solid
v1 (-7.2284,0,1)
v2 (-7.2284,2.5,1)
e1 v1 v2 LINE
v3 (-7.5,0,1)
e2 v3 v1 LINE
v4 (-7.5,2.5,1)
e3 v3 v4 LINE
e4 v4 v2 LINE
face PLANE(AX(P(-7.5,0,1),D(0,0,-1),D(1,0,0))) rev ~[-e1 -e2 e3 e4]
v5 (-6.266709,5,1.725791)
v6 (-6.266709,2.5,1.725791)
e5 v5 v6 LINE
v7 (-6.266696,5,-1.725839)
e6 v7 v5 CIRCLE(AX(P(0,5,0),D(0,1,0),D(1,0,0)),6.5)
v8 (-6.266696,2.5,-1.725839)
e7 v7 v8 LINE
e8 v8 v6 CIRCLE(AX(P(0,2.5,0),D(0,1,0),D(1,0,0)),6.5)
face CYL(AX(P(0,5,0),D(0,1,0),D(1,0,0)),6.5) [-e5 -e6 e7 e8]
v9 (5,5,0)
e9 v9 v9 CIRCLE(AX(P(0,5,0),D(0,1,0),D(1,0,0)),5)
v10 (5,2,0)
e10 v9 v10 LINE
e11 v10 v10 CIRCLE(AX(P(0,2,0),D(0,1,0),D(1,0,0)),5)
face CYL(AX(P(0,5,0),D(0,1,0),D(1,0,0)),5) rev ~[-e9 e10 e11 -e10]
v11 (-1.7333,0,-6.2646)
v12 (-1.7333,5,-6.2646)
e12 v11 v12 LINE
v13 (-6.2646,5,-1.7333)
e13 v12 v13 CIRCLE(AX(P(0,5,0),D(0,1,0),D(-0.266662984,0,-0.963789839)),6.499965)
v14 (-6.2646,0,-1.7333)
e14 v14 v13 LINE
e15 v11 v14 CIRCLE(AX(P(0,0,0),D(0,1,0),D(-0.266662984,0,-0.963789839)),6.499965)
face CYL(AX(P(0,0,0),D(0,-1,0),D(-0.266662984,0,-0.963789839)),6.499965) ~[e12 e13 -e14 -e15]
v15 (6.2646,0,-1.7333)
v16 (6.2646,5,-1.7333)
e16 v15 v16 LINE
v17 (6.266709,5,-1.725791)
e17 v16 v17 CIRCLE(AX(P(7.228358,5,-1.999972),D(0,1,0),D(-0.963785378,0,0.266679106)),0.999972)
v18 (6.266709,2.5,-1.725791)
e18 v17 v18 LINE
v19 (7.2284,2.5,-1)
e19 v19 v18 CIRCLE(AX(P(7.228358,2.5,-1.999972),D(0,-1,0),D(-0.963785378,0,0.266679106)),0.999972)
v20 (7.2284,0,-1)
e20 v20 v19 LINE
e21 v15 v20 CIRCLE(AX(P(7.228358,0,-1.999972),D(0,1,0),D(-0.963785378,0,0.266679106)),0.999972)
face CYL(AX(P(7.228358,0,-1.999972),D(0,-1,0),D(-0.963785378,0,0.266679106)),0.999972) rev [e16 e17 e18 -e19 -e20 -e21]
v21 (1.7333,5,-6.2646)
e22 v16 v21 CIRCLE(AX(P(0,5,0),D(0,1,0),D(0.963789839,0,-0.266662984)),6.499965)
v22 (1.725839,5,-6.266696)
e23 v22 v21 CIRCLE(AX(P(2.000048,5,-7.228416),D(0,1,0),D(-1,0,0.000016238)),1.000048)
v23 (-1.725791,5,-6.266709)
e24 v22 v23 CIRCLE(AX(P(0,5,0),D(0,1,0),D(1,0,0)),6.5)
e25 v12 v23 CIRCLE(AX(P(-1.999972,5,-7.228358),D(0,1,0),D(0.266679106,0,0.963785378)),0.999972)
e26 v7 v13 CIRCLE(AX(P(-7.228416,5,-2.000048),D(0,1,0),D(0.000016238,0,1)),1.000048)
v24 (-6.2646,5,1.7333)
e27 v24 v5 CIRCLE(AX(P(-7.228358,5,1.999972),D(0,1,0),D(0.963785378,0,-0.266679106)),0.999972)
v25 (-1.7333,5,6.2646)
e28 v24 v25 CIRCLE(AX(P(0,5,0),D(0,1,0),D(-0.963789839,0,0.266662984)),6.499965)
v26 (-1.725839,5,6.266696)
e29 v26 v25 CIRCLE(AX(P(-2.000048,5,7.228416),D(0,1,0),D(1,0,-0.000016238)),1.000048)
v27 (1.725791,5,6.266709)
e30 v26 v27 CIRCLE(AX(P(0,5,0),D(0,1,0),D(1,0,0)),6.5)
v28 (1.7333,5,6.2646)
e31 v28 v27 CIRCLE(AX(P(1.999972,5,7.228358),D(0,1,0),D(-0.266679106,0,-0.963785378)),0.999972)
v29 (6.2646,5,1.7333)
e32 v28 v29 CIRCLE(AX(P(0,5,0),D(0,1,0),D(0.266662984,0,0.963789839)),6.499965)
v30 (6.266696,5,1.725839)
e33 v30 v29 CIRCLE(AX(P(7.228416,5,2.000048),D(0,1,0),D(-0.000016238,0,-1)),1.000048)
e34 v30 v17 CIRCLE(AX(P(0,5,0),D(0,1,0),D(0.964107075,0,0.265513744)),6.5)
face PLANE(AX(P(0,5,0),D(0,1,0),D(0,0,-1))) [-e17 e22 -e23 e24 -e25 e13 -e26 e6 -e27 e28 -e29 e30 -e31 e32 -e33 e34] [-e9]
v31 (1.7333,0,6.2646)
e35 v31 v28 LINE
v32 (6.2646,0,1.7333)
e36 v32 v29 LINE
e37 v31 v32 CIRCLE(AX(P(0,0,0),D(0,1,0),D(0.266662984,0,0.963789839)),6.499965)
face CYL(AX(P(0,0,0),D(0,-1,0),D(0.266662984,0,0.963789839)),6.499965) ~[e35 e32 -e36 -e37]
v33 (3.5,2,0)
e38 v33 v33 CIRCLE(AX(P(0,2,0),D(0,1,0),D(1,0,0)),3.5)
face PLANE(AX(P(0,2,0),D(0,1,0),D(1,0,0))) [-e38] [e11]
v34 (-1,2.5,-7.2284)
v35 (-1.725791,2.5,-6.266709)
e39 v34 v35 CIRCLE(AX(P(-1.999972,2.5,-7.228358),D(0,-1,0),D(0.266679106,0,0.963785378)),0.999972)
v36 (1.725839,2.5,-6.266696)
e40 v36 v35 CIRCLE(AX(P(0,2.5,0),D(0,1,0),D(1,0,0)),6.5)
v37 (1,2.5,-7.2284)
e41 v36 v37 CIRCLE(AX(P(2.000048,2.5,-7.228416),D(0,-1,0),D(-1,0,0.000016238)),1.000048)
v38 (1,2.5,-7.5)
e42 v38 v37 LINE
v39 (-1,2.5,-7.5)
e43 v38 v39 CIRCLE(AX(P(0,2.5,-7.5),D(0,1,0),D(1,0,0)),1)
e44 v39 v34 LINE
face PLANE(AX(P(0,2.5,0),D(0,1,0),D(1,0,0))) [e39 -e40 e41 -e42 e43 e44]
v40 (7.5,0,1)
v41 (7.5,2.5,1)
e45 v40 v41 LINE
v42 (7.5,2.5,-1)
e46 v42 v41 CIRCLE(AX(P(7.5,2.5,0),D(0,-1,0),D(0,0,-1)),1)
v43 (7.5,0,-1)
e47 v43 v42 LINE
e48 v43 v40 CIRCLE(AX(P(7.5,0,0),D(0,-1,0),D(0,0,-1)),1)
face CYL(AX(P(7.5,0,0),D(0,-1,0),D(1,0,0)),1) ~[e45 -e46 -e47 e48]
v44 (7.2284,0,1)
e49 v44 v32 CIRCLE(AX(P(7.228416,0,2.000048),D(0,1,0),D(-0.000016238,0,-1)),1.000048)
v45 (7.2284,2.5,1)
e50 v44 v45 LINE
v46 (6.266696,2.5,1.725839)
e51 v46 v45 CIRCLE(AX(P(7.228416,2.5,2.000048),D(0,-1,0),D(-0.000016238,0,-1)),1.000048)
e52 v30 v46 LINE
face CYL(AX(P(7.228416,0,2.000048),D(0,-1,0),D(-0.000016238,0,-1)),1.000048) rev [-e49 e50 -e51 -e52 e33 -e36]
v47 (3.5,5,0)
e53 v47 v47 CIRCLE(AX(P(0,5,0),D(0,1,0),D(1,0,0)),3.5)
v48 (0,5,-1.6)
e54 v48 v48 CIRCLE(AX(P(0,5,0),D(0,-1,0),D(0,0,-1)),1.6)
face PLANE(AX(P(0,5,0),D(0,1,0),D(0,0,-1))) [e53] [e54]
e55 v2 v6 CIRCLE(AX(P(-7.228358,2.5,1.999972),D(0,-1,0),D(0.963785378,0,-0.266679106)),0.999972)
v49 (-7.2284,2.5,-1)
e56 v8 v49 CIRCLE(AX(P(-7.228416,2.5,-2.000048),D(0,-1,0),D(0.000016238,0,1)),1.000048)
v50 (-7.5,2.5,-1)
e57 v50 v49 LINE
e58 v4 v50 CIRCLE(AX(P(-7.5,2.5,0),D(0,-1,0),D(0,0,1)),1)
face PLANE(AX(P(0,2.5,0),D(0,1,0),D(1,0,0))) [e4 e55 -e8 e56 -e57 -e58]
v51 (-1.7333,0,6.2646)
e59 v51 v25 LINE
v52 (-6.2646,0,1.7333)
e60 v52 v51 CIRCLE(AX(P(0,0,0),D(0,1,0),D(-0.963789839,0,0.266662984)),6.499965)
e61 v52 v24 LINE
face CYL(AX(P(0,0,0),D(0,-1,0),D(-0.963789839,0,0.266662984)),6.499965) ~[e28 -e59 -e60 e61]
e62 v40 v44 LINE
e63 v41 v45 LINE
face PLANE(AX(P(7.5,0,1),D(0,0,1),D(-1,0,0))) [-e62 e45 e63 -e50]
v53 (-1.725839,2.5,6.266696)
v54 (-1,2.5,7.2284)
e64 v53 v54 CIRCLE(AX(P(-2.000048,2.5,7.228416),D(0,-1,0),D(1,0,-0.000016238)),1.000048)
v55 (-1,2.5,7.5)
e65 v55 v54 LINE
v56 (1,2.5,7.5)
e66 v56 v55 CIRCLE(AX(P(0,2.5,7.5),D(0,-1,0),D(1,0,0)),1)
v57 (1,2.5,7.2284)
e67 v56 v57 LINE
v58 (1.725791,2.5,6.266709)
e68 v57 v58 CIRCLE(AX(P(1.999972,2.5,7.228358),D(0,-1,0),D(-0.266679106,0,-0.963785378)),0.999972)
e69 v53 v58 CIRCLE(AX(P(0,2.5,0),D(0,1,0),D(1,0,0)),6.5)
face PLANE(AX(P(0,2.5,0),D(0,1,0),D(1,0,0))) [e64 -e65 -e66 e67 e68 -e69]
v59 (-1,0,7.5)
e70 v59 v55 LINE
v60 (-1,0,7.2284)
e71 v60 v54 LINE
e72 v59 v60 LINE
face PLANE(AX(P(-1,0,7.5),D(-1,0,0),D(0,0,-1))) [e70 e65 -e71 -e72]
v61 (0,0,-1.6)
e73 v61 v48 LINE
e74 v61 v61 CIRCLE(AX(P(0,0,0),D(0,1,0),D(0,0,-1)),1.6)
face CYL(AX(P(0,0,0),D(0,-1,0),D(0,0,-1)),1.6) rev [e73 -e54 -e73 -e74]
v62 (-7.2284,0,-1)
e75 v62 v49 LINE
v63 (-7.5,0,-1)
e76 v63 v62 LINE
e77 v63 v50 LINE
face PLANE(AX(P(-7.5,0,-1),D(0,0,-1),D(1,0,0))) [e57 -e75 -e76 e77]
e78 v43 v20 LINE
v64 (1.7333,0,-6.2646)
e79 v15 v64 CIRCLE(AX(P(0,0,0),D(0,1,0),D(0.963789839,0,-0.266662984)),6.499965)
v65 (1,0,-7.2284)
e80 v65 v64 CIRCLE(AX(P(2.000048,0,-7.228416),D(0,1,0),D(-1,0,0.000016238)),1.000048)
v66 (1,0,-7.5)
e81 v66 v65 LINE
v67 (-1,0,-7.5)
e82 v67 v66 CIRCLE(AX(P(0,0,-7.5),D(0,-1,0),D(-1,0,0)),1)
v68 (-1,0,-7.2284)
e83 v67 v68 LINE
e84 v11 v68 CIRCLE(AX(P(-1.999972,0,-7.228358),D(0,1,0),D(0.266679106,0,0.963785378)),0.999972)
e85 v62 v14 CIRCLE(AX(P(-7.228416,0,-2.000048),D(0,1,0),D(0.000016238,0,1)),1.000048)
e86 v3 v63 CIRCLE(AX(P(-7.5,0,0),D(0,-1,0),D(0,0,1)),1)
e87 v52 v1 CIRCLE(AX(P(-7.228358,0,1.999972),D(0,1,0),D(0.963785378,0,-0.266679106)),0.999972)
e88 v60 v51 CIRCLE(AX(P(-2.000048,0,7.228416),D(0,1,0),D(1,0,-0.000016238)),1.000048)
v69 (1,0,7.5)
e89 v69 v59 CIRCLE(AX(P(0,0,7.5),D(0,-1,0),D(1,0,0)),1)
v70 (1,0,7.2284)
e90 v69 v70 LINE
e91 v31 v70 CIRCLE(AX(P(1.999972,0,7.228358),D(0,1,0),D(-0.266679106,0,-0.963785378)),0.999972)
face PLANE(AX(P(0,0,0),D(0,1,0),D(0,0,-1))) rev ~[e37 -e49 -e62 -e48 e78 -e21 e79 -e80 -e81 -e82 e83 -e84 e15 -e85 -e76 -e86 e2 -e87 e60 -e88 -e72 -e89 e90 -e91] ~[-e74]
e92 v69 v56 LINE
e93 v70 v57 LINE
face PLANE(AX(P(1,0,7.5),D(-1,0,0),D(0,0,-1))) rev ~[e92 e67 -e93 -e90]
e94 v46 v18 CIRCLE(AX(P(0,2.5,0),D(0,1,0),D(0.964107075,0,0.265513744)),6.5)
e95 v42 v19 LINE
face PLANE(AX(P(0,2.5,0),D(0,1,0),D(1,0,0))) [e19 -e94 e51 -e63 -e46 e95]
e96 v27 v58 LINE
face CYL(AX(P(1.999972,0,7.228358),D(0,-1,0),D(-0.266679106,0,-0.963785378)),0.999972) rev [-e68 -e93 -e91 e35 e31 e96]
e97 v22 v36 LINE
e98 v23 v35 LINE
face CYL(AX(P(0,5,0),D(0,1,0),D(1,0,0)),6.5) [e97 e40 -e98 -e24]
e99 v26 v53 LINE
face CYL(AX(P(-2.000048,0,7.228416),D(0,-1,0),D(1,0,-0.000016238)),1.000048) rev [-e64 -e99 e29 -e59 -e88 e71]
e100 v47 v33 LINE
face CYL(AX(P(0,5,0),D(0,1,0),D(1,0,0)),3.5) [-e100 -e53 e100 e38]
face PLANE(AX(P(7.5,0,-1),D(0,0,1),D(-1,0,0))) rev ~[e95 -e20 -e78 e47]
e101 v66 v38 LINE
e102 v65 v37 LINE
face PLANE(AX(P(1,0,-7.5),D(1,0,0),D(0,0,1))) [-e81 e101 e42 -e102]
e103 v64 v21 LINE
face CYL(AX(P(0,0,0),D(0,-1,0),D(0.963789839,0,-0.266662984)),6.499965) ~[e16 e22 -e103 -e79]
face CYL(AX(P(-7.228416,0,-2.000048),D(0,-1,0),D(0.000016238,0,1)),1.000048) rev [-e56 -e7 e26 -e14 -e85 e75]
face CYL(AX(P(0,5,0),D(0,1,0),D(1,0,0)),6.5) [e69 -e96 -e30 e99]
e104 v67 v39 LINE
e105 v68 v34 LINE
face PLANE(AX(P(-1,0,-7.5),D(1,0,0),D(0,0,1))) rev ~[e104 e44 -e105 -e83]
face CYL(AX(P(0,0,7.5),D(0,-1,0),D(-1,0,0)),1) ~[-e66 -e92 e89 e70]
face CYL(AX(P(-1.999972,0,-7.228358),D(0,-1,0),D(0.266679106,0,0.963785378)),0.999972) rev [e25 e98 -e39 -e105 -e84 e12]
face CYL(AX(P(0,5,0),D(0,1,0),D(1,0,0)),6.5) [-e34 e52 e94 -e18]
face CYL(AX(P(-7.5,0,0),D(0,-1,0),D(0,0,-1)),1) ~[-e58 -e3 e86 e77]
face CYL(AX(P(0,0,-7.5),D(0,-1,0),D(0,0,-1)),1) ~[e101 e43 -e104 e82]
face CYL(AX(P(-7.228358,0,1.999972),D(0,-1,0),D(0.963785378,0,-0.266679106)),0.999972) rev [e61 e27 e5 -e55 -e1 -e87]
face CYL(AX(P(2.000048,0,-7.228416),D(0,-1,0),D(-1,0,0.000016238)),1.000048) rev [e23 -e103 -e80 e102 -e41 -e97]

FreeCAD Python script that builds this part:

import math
import FreeCAD as App
import Part
import Sketcher

V = App.Vector
Q = App.Units.Quantity

doc = App.newDocument("Part")
body = doc.addObject("PartDesign::Body", "Body")

sketch1 = body.newObject("Sketcher::SketchObject", "Sketch")
sketch1.AttachmentSupport = (doc.getObject("XZ_Plane"), [""])
sketch1.MapMode = "FlatFace"
sketch1.addGeometry([
    Part.ArcOfCircle(Part.Circle(V(-7.23, 2, 0), V(0, 0, 1), 1), math.radians(-90), math.radians(-15)),
    Part.ArcOfCircle(Part.Circle(V(0, 0, 0), V(0, 0, 1), 6.5), math.radians(105), math.radians(165)),
    Part.ArcOfCircle(Part.Circle(V(-2, 7.23, 0), V(0, 0, 1), 1), math.radians(-75), math.radians(0)),
    Part.LineSegment(V(-1, 7.23, 0), V(-1, 7.5, 0)),
    Part.ArcOfCircle(Part.Circle(V(0, 7.5, 0), V(0, 0, 1), 1), math.radians(90), math.radians(180)),
    Part.LineSegment(V(0, 8.5, 0), V(0, 1.6, 0)),
    Part.ArcOfCircle(Part.Circle(V(0, 0, 0), V(0, 0, 1), 1.6), math.radians(90), math.radians(180)),
    Part.LineSegment(V(-1.6, 0, 0), V(-8.5, 0, 0)),
    Part.ArcOfCircle(Part.Circle(V(-7.5, 0, 0), V(0, 0, 1), 1), math.radians(90), math.radians(180)),
    Part.LineSegment(V(-7.5, 1, 0), V(-7.23, 1, 0)),
], False)
sketch1.addConstraint([
    Sketcher.Constraint("Tangent", 0, 2, 1, 2),
    Sketcher.Constraint("Tangent", 1, 1, 2, 1),
    Sketcher.Constraint("Tangent", 2, 2, 3, 1),
    Sketcher.Constraint("Tangent", 3, 2, 4, 2),
    Sketcher.Constraint("Coincident", 4, 1, 5, 1),
    Sketcher.Constraint("Coincident", 5, 2, 6, 1),
    Sketcher.Constraint("Coincident", 6, 2, 7, 1),
    Sketcher.Constraint("Coincident", 7, 2, 8, 2),
    Sketcher.Constraint("Tangent", 8, 1, 9, 1),
    Sketcher.Constraint("Tangent", 9, 2, 0, 1),
    Sketcher.Constraint("Vertical", 3),
    Sketcher.Constraint("Vertical", 5),
    Sketcher.Constraint("Horizontal", 7),
    Sketcher.Constraint("Horizontal", 9),
    Sketcher.Constraint("Coincident", 1, 3, -1, 1),
    Sketcher.Constraint("Coincident", 6, 3, -1, 1),
    Sketcher.Constraint("Equal", 0, 2),
    Sketcher.Constraint("Equal", 2, 4),
    Sketcher.Constraint("Equal", 4, 8),
    Sketcher.Constraint("PointOnObject", 4, 3, -2),
    Sketcher.Constraint("PointOnObject", 8, 3, -1),
    Sketcher.Constraint("PointOnObject", 4, 1, -2),
    Sketcher.Constraint("PointOnObject", 6, 2, -1),
    Sketcher.Constraint("Equal", 9, 3),
    Sketcher.Constraint("Radius", 0, Q("1 mm")),
    Sketcher.Constraint("Radius", 1, Q("6.5 mm")),
    Sketcher.Constraint("Radius", 6, Q("1.6 mm")),
    Sketcher.Constraint("DistanceY", -1, 1, 4, 3, Q("7.5 mm")),
])
pad1 = body.newObject("PartDesign::Pad", "Pad")
pad1.Profile = sketch1
pad1.Length = 5
pad1.Reversed = True
doc.recompute()

polarpattern = body.newObject("PartDesign::PolarPattern", "PolarPattern")
polarpattern.Originals = [pad1]
polarpattern.Axis = (doc.getObject("Y_Axis"), [""])
polarpattern.Angle = 360
polarpattern.Occurrences = 4
body.Tip = polarpattern

sketch2 = body.newObject("Sketcher::SketchObject", "Sketch001")
sketch2.AttachmentSupport = (doc.getObject("XZ_Plane"), [""])
sketch2.MapMode = "FlatFace"
sketch2.AttachmentOffset = App.Placement(V(0, 0, -5), App.Rotation())
sketch2.addGeometry([
    Part.Circle(V(0, 0, 0), V(0, 0, 1), 5),
    Part.Circle(V(0, 0, 0), V(0, 0, 1), 3.5),
], False)
sketch2.addConstraint([
    Sketcher.Constraint("Coincident", 0, 3, -1, 1),
    Sketcher.Constraint("Coincident", 1, 3, -1, 1),
    Sketcher.Constraint("Diameter", 0, Q("10 mm")),
    Sketcher.Constraint("Diameter", 1, Q("7 mm")),
])
pocket1 = body.newObject("PartDesign::Pocket", "Pocket")
pocket1.Profile = sketch2
pocket1.Length = 3
pocket1.Reversed = True

sketch3 = body.newObject("Sketcher::SketchObject", "Sketch002")
sketch3.AttachmentSupport = (doc.getObject("XZ_Plane"), [""])
sketch3.MapMode = "FlatFace"
sketch3.AttachmentOffset = App.Placement(V(0, 0, -5), App.Rotation())
sketch3.addGeometry([
    Part.Circle(V(0, 0, 0), V(0, 0, 1), 8),
    Part.Circle(V(0, 0, 0), V(0, 0, 1), 6),
], False)
sketch3.addConstraint([
    Sketcher.Constraint("Coincident", 0, 3, -1, 1),
    Sketcher.Constraint("Coincident", 1, 3, -1, 1),
    Sketcher.Constraint("Diameter", 0, Q("17 mm")),
    Sketcher.Constraint("Diameter", 1, Q("13 mm")),
])
pocket2 = body.newObject("PartDesign::Pocket", "Pocket001")
pocket2.Profile = sketch3
pocket2.Length = 2.5
pocket2.Reversed = True

doc.recompute()
